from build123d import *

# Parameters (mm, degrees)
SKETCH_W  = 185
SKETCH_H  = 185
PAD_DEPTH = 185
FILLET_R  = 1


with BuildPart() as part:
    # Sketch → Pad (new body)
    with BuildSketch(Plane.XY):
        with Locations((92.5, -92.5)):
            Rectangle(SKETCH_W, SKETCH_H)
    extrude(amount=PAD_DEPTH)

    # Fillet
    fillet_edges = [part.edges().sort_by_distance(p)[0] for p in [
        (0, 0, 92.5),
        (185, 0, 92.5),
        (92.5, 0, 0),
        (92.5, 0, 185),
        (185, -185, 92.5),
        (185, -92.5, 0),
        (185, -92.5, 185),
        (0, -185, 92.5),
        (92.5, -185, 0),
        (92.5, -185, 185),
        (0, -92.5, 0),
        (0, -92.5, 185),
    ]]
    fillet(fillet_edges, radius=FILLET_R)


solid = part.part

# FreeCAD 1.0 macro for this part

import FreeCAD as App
import Part
import Sketcher
from FreeCAD import Vector
Q = App.Units.Quantity

doc = App.newDocument("Part")
params = doc.addObject("Spreadsheet::Sheet", "Params")
for row, (alias, value) in enumerate([
    ("sketch1_width", "185 mm"),
    ("pad1_length", "185 mm"),
    ("fillet_radius", "1 mm"),
], start=1):
    params.set(f"A{row}", alias)
    params.set(f"B{row}", "=" + value)
    params.setAlias(f"B{row}", alias)

body = doc.addObject("PartDesign::Body", "Body")

sketch1 = doc.addObject("Sketcher::SketchObject", "Sketch")
body.addObject(sketch1)
sketch1.AttachmentSupport = (doc.XY_Plane, [""])
sketch1.MapMode = "FlatFace"
sketch1.addGeometry(Part.LineSegment(Vector(0, 0, 0), Vector(0, -185, 0)), False)
sketch1.addGeometry(Part.LineSegment(Vector(0, -185, 0), Vector(185, -185, 0)), False)
sketch1.addGeometry(Part.LineSegment(Vector(185, -185, 0), Vector(185, 0, 0)), False)
sketch1.addGeometry(Part.LineSegment(Vector(185, 0, 0), Vector(0, 0, 0)), False)
sketch1.addConstraint(Sketcher.Constraint("Coincident", 0, 2, 1, 1))
sketch1.addConstraint(Sketcher.Constraint("Coincident", 1, 2, 2, 1))
sketch1.addConstraint(Sketcher.Constraint("Coincident", 2, 2, 3, 1))
sketch1.addConstraint(Sketcher.Constraint("Coincident", 3, 2, 0, 1))
sketch1.addConstraint(Sketcher.Constraint("Vertical", 0))
sketch1.addConstraint(Sketcher.Constraint("Horizontal", 1))
sketch1.addConstraint(Sketcher.Constraint("Vertical", 2))
sketch1.addConstraint(Sketcher.Constraint("Horizontal", 3))
sketch1.addConstraint(Sketcher.Constraint("Coincident", 3, 2, -1, 1))
sketch1.addConstraint(Sketcher.Constraint("Equal", 3, 0))
sketch1.addConstraint(Sketcher.Constraint("DistanceX", 1, 1, 1, 2, Q("185 mm")))
sketch1.setExpression("Constraints[10]", "Params.sketch1_width")
pad1 = doc.addObject("PartDesign::Pad", "Pad")
body.addObject(pad1)
pad1.Profile = sketch1
pad1.setExpression("Length", "Params.pad1_length")
doc.recompute()

fillet = doc.addObject("PartDesign::Fillet", "Fillet")
body.addObject(fillet)
fillet.Base = (pad1, ["Edge1"])
fillet.UseAllEdges = True
fillet.setExpression("Radius", "Params.fillet_radius")

doc.recompute()
